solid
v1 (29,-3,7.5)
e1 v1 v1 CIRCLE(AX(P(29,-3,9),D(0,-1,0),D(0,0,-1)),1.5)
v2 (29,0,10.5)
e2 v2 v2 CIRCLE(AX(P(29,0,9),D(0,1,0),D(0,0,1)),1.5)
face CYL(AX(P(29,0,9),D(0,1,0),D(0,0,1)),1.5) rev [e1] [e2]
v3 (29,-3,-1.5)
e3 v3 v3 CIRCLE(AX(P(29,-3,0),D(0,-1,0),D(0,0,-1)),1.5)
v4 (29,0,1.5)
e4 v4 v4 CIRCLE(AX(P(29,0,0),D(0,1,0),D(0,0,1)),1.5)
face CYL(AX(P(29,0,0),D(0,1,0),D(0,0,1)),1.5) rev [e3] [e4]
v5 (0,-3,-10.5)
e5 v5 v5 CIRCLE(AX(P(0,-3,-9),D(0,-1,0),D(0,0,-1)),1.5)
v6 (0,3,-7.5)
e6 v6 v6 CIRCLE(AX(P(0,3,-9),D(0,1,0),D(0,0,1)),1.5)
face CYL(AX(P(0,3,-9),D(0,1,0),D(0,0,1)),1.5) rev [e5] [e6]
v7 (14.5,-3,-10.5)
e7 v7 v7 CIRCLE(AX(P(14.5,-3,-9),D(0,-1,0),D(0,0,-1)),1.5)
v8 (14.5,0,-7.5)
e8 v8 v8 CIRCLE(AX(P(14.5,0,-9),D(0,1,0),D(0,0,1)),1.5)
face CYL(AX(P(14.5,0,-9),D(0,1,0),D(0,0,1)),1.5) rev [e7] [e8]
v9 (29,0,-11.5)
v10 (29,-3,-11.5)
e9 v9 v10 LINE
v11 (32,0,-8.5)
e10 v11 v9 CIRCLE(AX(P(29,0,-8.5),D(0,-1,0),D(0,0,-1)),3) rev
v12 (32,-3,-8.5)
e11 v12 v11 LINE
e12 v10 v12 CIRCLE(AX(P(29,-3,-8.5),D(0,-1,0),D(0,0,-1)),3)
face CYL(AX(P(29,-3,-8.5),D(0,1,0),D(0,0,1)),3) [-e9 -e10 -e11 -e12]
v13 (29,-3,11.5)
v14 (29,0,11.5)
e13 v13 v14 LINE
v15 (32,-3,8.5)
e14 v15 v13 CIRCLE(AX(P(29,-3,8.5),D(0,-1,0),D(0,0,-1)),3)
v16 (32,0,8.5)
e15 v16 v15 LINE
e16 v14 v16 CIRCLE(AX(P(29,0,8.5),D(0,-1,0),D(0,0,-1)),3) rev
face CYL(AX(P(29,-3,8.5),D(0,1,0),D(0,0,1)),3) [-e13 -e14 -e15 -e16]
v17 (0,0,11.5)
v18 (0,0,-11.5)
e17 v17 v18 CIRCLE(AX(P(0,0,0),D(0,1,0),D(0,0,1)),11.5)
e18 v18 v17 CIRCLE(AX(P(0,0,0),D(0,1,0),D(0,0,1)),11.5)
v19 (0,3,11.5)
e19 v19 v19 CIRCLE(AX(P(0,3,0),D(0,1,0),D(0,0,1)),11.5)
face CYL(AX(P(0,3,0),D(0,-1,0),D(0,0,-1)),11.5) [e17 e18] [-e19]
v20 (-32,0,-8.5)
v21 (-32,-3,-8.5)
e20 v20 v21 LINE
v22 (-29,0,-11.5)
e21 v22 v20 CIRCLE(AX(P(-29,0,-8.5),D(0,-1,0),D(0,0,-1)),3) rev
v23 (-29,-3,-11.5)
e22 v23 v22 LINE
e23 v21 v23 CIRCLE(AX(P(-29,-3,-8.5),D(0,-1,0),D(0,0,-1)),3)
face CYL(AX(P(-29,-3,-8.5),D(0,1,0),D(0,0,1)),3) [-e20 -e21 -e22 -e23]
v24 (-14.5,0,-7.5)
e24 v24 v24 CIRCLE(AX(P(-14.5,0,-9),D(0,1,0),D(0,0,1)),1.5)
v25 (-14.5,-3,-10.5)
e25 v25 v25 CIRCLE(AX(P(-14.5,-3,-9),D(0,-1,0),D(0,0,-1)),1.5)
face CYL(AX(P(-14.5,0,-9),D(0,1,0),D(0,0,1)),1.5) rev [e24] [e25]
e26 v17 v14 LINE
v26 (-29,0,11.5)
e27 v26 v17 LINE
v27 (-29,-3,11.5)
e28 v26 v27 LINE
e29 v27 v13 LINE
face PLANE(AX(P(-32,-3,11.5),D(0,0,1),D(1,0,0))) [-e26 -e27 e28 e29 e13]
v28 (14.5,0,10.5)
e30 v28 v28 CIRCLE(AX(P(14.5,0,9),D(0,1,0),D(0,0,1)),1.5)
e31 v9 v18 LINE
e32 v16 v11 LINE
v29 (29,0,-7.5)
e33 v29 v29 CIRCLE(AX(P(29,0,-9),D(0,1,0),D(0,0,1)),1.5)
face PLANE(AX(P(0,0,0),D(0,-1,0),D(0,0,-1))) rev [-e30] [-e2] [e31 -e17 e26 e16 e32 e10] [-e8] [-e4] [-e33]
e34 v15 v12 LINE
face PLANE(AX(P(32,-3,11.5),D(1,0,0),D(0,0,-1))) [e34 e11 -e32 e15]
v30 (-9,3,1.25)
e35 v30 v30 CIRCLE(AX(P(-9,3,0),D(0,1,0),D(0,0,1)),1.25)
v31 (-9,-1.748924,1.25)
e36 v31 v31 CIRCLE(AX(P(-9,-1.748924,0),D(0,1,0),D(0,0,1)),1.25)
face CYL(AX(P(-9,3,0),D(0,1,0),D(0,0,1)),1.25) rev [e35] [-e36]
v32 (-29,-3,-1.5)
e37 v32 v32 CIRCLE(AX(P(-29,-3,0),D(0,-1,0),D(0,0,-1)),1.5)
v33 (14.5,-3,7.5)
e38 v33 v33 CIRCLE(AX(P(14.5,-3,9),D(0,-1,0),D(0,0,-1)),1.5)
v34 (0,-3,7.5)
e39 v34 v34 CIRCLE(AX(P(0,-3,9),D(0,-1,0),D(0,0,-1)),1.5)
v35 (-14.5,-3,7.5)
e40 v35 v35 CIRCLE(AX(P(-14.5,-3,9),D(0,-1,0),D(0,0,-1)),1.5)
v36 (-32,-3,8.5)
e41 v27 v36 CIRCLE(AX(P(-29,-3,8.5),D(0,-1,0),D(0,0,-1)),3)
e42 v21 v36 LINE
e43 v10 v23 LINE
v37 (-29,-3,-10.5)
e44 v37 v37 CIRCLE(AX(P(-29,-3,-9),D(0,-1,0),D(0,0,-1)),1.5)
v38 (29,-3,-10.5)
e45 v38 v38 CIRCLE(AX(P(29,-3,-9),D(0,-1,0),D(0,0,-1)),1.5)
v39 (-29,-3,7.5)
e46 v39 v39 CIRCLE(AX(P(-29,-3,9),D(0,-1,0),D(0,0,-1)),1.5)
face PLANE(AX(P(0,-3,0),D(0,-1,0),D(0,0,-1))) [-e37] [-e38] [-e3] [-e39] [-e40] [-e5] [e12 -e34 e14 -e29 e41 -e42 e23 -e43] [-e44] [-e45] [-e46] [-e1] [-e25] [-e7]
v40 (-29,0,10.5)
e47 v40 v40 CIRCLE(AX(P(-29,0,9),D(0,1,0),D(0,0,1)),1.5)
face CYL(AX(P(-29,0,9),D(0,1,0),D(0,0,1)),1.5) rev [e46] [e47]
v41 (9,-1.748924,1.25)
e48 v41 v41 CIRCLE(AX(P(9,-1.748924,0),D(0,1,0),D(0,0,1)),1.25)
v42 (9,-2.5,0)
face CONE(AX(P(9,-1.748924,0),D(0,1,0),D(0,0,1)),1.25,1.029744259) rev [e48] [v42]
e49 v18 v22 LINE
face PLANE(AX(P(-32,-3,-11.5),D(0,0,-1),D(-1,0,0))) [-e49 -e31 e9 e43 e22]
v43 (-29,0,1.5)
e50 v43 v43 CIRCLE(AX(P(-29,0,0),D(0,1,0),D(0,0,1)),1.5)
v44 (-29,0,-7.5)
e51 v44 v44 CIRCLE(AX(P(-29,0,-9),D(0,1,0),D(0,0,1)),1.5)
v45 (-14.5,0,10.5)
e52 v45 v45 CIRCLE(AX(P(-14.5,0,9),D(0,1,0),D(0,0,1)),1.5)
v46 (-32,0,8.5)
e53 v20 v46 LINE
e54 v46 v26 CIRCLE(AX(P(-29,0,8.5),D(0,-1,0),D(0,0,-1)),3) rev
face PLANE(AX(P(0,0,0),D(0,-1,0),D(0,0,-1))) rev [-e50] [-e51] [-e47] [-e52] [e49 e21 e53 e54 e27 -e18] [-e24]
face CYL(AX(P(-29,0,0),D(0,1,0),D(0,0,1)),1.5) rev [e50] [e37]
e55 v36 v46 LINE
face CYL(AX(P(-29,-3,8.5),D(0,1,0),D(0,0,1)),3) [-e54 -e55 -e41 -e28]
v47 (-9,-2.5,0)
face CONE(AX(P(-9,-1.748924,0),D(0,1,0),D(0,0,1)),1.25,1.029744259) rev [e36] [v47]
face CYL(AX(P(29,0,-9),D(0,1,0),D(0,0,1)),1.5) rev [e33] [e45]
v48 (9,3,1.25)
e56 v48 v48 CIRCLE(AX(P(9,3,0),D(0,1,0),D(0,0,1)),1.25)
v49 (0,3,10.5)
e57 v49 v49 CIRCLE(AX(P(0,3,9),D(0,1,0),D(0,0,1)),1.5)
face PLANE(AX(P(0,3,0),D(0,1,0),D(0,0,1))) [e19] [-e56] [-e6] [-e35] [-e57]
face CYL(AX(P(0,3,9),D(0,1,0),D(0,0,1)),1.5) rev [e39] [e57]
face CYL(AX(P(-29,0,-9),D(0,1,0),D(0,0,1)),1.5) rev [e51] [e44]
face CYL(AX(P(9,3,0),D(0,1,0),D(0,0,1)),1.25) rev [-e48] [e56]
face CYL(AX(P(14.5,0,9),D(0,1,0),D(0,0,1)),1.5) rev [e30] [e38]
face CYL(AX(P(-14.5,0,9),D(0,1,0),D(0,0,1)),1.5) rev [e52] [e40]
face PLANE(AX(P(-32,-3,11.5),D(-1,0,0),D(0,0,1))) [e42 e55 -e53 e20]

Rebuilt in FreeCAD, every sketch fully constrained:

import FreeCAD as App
import Part
import Sketcher


def edges_at(feature, points):
    """Names of the edges that pass closest to the given points."""
    edges = feature.Shape.Edges
    near = lambda p: min(range(len(edges)), key=lambda i: edges[i].distToShape(Part.Vertex(*p))[0])
    return sorted({f"Edge{near(p) + 1}" for p in points})

doc = App.newDocument("Part")
body = doc.addObject("PartDesign::Body", "Body")

# Sketch on XZ plane
sketch1 = doc.addObject("Sketcher::SketchObject", "Sketch")
body.addObject(sketch1)
sketch1.AttachmentSupport = (doc.XZ_Plane, [""])
sketch1.MapMode = "FlatFace"
sketch1.addGeometry(Part.LineSegment(App.Vector(-32, -12, 0), App.Vector(-32, 12, 0)), False)
sketch1.addGeometry(Part.LineSegment(App.Vector(-32, 12, 0), App.Vector(32, 12, 0)), False)
sketch1.addGeometry(Part.LineSegment(App.Vector(32, 12, 0), App.Vector(32, -12, 0)), False)
sketch1.addGeometry(Part.LineSegment(App.Vector(32, -12, 0), App.Vector(-32, -12, 0)), False)
sketch1.addConstraint(Sketcher.Constraint("Coincident", 0, 2, 1, 1))
sketch1.addConstraint(Sketcher.Constraint("Coincident", 1, 2, 2, 1))
sketch1.addConstraint(Sketcher.Constraint("Coincident", 2, 2, 3, 1))
sketch1.addConstraint(Sketcher.Constraint("Coincident", 3, 2, 0, 1))
sketch1.addConstraint(Sketcher.Constraint("Vertical", 0))
sketch1.addConstraint(Sketcher.Constraint("Horizontal", 1))
sketch1.addConstraint(Sketcher.Constraint("Vertical", 2))
sketch1.addConstraint(Sketcher.Constraint("Horizontal", 3))
sketch1.addConstraint(Sketcher.Constraint("Symmetric", 0, 2, 2, 2, -1, 1))
sketch1.addConstraint(Sketcher.Constraint("DistanceX", 1, 1, 1, 2, 64.0))
sketch1.addConstraint(Sketcher.Constraint("DistanceY", 0, 1, 0, 2, 23.0))
pad1 = doc.addObject("PartDesign::Pad", "Pad")
body.addObject(pad1)
pad1.Profile = sketch1
pad1.Length = 3

# Sketch on XZ plane
sketch2 = doc.addObject("Sketcher::SketchObject", "Sketch001")
body.addObject(sketch2)
sketch2.AttachmentSupport = (doc.XZ_Plane, [""])
sketch2.MapMode = "FlatFace"
sketch2.addGeometry(Part.Circle(App.Vector(-29, 0, 0), App.Vector(0, 0, 1), 1.5), False)
sketch2.addGeometry(Part.Circle(App.Vector(-29, -9, 0), App.Vector(0, 0, 1), 1.5), False)
sketch2.addGeometry(Part.Circle(App.Vector(-14.5, -9, 0), App.Vector(0, 0, 1), 1.5), False)
sketch2.addGeometry(Part.Circle(App.Vector(-14.5, 9, 0), App.Vector(0, 0, 1), 1.5), False)
sketch2.addGeometry(Part.Circle(App.Vector(-29, 9, 0), App.Vector(0, 0, 1), 1.5), False)
sketch2.addConstraint(Sketcher.Constraint("Equal", 0, 1))
sketch2.addConstraint(Sketcher.Constraint("Equal", 1, 2))
sketch2.addConstraint(Sketcher.Constraint("Equal", 2, 3))
sketch2.addConstraint(Sketcher.Constraint("Equal", 3, 4))
sketch2.addConstraint(Sketcher.Constraint("Symmetric", 2, 3, 3, 3, -1))
sketch2.addConstraint(Sketcher.Constraint("Symmetric", 1, 3, 4, 3, -1))
sketch2.addConstraint(Sketcher.Constraint("PointOnObject", 0, 3, -1))
sketch2.addConstraint(Sketcher.Constraint("Horizontal", 1, 3, 2, 3))
sketch2.addConstraint(Sketcher.Constraint("Vertical", 0, 3, 1, 3))
sketch2.addConstraint(Sketcher.Constraint("Diameter", 0, 3.0))
sketch2.addConstraint(Sketcher.Constraint("DistanceX", 0, 3, -1, 1, 29.0))
sketch2.addConstraint(Sketcher.Constraint("DistanceY", 1, 3, -1, 1, 9.0))
sketch2.addConstraint(Sketcher.Constraint("DistanceX", 2, 3, -1, 1, 14.5))
doc.recompute()
hole = doc.addObject("PartDesign::Hole", "Hole")
body.addObject(hole)
hole.Profile = sketch2
hole.ThreadType = "None"
hole.Diameter = 3
hole.DepthType = "ThroughAll"
hole.Reversed = True
doc.recompute()

mirrored = doc.addObject("PartDesign::Mirrored", "Mirrored")
body.addObject(mirrored)
mirrored.Originals = [hole]
mirrored.MirrorPlane = (doc.YZ_Plane, [""])
body.Tip = mirrored
doc.recompute()

fillet = doc.addObject("PartDesign::Fillet", "Fillet")
body.addObject(fillet)
fillet.Base = (mirrored, edges_at(mirrored, [
    (32, -1.5, 11.5),
    (-32, -1.5, 11.5),
    (-32, -1.5, -11.5),
    (32, -1.5, -11.5),
]))
fillet.Radius = 3

# Sketch on XZ plane
sketch3 = doc.addObject("Sketcher::SketchObject", "Sketch002")
body.addObject(sketch3)
sketch3.AttachmentSupport = (doc.XZ_Plane, [""])
sketch3.MapMode = "FlatFace"
sketch3.addGeometry(Part.Circle(App.Vector(0, 0, 0), App.Vector(0, 0, 1), 12), False)
sketch3.addConstraint(Sketcher.Constraint("Coincident", 0, 3, -1, 1))
sketch3.addConstraint(Sketcher.Constraint("Diameter", 0, 23.0))
pad2 = doc.addObject("PartDesign::Pad", "Pad001")
body.addObject(pad2)
pad2.Profile = sketch3
pad2.Length = 3
pad2.Reversed = True

# Sketch on XZ plane
sketch4 = doc.addObject("Sketcher::SketchObject", "Sketch003")
body.addObject(sketch4)
sketch4.AttachmentSupport = (doc.XZ_Plane, [""])
sketch4.MapMode = "FlatFace"
sketch4.AttachmentOffset = App.Placement(App.Vector(0, 0, -3), App.Rotation())
sketch4.addGeometry(Part.Circle(App.Vector(0, -9, 0), App.Vector(0, 0, 1), 1.5), False)
sketch4.addGeometry(Part.Circle(App.Vector(0, 9, 0), App.Vector(0, 0, 1), 1.5), False)
sketch4.addConstraint(Sketcher.Constraint("Equal", 0, 1))
sketch4.addConstraint(Sketcher.Constraint("Symmetric", 0, 3, 1, 3, -1, 1))
sketch4.addConstraint(Sketcher.Constraint("PointOnObject", 0, 3, -2))
sketch4.addConstraint(Sketcher.Constraint("Diameter", 0, 3.0))
sketch4.addConstraint(Sketcher.Constraint("DistanceY", 0, 3, -1, 1, 9.0))
doc.recompute()
hole2 = doc.addObject("PartDesign::Hole", "Hole001")
body.addObject(hole2)
hole2.Profile = sketch4
hole2.ThreadType = "None"
hole2.Diameter = 3
hole2.DepthType = "ThroughAll"
hole2.Reversed = True

# Sketch on XZ plane
sketch5 = doc.addObject("Sketcher::SketchObject", "Sketch004")
body.addObject(sketch5)
sketch5.AttachmentSupport = (doc.XZ_Plane, [""])
sketch5.MapMode = "FlatFace"
sketch5.AttachmentOffset = App.Placement(App.Vector(0, 0, -3), App.Rotation())
sketch5.addGeometry(Part.Circle(App.Vector(-9, 0, 0), App.Vector(0, 0, 1), 1.2), False)
sketch5.addGeometry(Part.Circle(App.Vector(9, 0, 0), App.Vector(0, 0, 1), 1.2), False)
sketch5.addConstraint(Sketcher.Constraint("Equal", 0, 1))
sketch5.addConstraint(Sketcher.Constraint("Symmetric", 0, 3, 1, 3, -1, 1))
sketch5.addConstraint(Sketcher.Constraint("PointOnObject", 0, 3, -1))
sketch5.addConstraint(Sketcher.Constraint("Diameter", 0, 2.5))
sketch5.addConstraint(Sketcher.Constraint("DistanceX", 0, 3, -1, 1, 9.0))
doc.recompute()
hole3 = doc.addObject("PartDesign::Hole", "Hole002")
body.addObject(hole3)
hole3.Profile = sketch5
hole3.ThreadType = "None"
hole3.Diameter = 2.5
hole3.DepthType = "Dimension"
hole3.Depth = 4.748924
hole3.DrillPoint = "Angled"
hole3.DrillPointAngle = 118
hole3.Reversed = True

doc.recompute()
